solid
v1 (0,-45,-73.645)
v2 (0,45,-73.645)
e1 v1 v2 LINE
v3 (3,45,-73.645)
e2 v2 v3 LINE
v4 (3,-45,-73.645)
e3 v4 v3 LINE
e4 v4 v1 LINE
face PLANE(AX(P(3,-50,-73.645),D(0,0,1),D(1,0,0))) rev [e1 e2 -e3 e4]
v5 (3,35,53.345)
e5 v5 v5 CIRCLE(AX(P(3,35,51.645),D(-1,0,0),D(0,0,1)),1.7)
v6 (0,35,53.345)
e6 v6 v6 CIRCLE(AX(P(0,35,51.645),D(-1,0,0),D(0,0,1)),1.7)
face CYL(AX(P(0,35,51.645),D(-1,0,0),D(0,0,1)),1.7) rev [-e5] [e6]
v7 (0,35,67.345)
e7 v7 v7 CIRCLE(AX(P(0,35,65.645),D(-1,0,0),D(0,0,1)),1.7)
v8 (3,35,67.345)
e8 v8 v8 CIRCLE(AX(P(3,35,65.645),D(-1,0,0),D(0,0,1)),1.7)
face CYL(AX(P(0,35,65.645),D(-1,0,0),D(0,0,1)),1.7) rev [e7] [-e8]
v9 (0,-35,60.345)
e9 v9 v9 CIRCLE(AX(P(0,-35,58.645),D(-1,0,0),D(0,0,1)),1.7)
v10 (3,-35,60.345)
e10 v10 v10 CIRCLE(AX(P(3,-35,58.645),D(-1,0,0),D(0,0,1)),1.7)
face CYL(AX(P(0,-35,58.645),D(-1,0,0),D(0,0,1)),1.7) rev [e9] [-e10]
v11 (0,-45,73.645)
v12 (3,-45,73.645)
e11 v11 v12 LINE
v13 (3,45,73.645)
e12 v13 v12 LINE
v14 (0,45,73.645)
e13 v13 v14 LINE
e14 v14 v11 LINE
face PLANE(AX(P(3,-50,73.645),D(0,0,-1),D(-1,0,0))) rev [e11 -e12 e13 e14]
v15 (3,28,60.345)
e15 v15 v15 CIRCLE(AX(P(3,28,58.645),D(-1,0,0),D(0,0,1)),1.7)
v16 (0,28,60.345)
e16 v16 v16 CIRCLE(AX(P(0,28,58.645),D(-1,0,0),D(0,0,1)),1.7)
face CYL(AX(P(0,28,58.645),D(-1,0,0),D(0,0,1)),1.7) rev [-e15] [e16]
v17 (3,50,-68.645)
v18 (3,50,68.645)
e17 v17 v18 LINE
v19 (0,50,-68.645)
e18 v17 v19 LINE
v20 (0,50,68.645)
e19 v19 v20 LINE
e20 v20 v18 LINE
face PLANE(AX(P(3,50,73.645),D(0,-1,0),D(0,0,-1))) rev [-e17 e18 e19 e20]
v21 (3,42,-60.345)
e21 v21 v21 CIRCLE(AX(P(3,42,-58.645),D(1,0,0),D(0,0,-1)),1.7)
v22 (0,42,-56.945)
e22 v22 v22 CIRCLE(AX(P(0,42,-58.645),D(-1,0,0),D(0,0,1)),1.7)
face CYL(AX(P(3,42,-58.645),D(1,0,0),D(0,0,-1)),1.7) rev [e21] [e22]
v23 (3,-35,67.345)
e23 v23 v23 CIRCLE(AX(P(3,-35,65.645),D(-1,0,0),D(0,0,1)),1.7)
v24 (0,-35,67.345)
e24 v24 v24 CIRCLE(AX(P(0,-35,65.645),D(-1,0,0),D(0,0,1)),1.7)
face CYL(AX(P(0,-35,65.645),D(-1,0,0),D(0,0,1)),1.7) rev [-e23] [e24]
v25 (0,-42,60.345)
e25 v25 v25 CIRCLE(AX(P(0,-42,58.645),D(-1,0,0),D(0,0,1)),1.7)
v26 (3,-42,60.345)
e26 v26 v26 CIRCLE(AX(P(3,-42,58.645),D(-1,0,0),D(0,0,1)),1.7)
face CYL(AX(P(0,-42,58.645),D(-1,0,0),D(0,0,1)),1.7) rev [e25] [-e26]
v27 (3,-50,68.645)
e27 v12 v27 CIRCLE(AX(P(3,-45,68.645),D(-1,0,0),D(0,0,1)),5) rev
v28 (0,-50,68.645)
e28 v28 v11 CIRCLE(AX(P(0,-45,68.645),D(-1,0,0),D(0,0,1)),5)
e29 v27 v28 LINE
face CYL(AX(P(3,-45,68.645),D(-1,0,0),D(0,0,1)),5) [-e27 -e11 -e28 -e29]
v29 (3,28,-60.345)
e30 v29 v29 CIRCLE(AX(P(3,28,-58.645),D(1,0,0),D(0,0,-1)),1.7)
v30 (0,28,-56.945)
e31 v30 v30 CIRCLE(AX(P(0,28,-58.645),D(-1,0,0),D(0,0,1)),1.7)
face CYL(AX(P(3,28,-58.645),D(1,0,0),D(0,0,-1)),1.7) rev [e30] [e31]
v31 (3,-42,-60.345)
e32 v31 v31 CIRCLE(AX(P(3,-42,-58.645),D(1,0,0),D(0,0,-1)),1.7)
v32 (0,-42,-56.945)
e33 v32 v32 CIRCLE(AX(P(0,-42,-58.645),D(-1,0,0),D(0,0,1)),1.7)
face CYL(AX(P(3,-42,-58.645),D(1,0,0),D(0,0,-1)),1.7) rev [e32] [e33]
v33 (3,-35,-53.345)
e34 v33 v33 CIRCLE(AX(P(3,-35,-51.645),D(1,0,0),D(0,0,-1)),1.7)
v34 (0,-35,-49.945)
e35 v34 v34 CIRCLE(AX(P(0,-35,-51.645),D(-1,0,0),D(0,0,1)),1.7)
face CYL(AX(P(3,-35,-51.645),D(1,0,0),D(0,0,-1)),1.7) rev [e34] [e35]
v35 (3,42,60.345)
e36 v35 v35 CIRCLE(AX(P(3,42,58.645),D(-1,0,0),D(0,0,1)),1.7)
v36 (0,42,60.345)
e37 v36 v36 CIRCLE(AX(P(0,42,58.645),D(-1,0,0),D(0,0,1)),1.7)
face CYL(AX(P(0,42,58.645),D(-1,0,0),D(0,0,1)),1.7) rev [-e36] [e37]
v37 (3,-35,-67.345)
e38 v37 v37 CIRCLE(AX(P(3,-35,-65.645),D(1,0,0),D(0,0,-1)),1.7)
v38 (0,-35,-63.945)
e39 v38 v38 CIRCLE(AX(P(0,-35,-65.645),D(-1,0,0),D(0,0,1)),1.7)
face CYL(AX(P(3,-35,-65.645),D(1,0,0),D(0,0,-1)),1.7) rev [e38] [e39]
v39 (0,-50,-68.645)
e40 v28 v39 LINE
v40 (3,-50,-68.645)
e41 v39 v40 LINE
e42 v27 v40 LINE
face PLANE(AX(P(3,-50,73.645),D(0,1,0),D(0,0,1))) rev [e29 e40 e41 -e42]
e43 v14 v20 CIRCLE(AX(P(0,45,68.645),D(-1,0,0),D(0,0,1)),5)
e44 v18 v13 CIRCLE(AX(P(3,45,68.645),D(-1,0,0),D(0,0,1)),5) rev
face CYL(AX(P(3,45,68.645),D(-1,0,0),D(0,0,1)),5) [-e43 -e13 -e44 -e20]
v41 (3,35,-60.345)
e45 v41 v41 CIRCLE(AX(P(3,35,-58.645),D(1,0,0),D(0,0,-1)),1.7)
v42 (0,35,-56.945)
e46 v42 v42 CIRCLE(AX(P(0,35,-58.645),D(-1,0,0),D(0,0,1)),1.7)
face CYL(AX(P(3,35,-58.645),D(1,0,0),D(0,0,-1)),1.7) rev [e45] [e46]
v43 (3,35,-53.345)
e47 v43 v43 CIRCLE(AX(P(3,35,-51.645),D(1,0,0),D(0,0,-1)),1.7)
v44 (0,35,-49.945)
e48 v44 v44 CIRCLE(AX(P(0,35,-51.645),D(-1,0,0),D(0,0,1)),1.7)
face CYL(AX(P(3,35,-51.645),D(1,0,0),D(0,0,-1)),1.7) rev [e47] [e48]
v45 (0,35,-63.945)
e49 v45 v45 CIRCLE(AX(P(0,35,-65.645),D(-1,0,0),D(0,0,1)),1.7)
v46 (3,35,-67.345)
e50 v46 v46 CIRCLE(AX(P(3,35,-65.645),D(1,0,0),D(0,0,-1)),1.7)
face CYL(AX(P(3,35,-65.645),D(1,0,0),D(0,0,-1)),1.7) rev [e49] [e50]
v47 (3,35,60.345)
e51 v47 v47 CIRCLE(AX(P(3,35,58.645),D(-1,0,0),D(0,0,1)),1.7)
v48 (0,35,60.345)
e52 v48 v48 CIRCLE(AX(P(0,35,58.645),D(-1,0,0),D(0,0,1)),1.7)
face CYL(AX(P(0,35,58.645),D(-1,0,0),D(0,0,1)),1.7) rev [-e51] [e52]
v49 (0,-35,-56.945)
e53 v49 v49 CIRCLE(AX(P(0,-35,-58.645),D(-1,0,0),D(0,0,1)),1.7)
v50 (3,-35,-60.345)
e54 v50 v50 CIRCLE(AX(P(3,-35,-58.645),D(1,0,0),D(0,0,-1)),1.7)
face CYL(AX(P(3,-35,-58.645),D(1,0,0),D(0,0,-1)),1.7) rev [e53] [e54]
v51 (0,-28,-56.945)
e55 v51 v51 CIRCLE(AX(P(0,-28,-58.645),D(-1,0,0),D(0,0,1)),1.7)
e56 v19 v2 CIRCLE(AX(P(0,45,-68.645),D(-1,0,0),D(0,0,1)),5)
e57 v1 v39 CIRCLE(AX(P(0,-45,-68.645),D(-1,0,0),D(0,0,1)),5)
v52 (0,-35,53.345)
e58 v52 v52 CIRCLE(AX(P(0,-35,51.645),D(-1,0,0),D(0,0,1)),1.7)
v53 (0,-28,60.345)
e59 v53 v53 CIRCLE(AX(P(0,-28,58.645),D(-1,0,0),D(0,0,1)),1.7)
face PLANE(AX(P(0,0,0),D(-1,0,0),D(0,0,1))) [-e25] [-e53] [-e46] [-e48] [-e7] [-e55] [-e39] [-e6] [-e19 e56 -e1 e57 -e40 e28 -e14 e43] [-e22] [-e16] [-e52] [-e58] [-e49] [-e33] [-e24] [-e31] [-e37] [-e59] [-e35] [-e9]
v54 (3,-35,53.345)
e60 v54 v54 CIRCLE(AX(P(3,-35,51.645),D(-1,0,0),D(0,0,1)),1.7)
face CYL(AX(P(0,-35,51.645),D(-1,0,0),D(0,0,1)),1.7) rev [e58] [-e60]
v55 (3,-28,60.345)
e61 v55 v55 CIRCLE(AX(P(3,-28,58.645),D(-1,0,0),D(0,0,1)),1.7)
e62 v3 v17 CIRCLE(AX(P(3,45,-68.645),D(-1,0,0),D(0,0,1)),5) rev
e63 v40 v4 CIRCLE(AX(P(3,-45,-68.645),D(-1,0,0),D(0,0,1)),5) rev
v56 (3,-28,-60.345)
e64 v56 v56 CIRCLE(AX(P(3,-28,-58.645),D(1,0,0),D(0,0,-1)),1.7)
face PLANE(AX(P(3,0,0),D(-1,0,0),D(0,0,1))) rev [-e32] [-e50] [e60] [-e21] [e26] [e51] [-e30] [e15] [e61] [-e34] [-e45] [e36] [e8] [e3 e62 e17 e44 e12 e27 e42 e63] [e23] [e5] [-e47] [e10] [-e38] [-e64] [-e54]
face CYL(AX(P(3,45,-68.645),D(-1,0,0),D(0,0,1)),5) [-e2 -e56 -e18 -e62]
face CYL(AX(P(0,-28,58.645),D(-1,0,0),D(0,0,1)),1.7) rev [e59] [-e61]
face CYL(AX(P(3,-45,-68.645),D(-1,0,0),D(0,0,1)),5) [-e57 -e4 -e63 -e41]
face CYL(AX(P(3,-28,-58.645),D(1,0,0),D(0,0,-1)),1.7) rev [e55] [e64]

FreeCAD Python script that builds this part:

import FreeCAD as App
import Part
import Sketcher

V = App.Vector
Q = App.Units.Quantity


def edges_at(feature, points):
    """Names of the edges that pass closest to the given points."""
    edges = feature.Shape.Edges
    near = lambda p: min(range(len(edges)), key=lambda i: edges[i].distToShape(Part.Vertex(*p))[0])
    return sorted({f"Edge{near(p) + 1}" for p in points})


def add_polygon(sketch, points):
    """Adds a closed chain of lines whose ends are joined by coincident constraints."""
    first, n = sketch.GeometryCount, len(points)
    for a, b in zip(points, points[1:] + points[:1]):
        sketch.addGeometry(Part.LineSegment(App.Vector(*a, 0), App.Vector(*b, 0)), False)
    for i in range(n):
        sketch.addConstraint(Sketcher.Constraint("Coincident", first + i, 2, first + (i + 1) % n, 1))

doc = App.newDocument("Part")
body = doc.addObject("PartDesign::Body", "Body")

sketch1 = body.newObject("Sketcher::SketchObject", "Sketch")
sketch1.AttachmentSupport = (doc.getObject("YZ_Plane"), [""])
sketch1.MapMode = "FlatFace"
add_polygon(sketch1, [(50, 74), (-50, 74), (-50, -74), (50, -74)])
sketch1.addConstraint(Sketcher.Constraint("Horizontal", 0))
sketch1.addConstraint(Sketcher.Constraint("Vertical", 1))
sketch1.addConstraint(Sketcher.Constraint("Horizontal", 2))
sketch1.addConstraint(Sketcher.Constraint("Vertical", 3))
sketch1.addConstraint(Sketcher.Constraint("Symmetric", 0, 2, 2, 2, -1, 1))
sketch1.addConstraint(Sketcher.Constraint("DistanceX", 0, 2, 0, 1, Q("100 mm")))
sketch1.addConstraint(Sketcher.Constraint("DistanceY", 1, 2, 1, 1, Q("147.29 mm")))
pad1 = body.newObject("PartDesign::Pad", "Pad")
pad1.Profile = sketch1
pad1.Length = 3

sketch2 = body.newObject("Sketcher::SketchObject", "Sketch001")
sketch2.AttachmentSupport = (doc.getObject("YZ_Plane"), [""])
sketch2.MapMode = "FlatFace"
sketch2.AttachmentOffset = App.Placement(V(0, 0, 3), App.Rotation())
sketch2.addGeometry(Part.Circle(V(-35, -58.6, 0), V(0, 0, 1), 1.7), False)
sketch2.addGeometry(Part.Circle(V(-35, -51.6, 0), V(0, 0, 1), 1.7), False)
sketch2.addGeometry(Part.Circle(V(-28, -58.6, 0), V(0, 0, 1), 1.7), False)
sketch2.addGeometry(Part.Circle(V(-35, -65.6, 0), V(0, 0, 1), 1.7), False)
sketch2.addGeometry(Part.Circle(V(-42, -58.6, 0), V(0, 0, 1), 1.7), False)
sketch2.addGeometry(Part.Circle(V(35, -58.6, 0), V(0, 0, 1), 1.7), False)
sketch2.addGeometry(Part.Circle(V(42, -58.6, 0), V(0, 0, 1), 1.7), False)
sketch2.addGeometry(Part.Circle(V(35, -51.6, 0), V(0, 0, 1), 1.7), False)
sketch2.addGeometry(Part.Circle(V(28, -58.6, 0), V(0, 0, 1), 1.7), False)
sketch2.addGeometry(Part.Circle(V(35, -65.6, 0), V(0, 0, 1), 1.7), False)
sketch2.addConstraint(Sketcher.Constraint("Equal", 0, 1))
sketch2.addConstraint(Sketcher.Constraint("Equal", 1, 2))
sketch2.addConstraint(Sketcher.Constraint("Equal", 2, 3))
sketch2.addConstraint(Sketcher.Constraint("Equal", 3, 4))
sketch2.addConstraint(Sketcher.Constraint("Equal", 4, 5))
sketch2.addConstraint(Sketcher.Constraint("Equal", 5, 6))
sketch2.addConstraint(Sketcher.Constraint("Equal", 6, 7))
sketch2.addConstraint(Sketcher.Constraint("Equal", 7, 8))
sketch2.addConstraint(Sketcher.Constraint("Equal", 8, 9))
sketch2.addConstraint(Sketcher.Constraint("Symmetric", 0, 3, 5, 3, -2))
sketch2.addConstraint(Sketcher.Constraint("Symmetric", 4, 3, 6, 3, -2))
sketch2.addConstraint(Sketcher.Constraint("Symmetric", 1, 3, 7, 3, -2))
sketch2.addConstraint(Sketcher.Constraint("Symmetric", 2, 3, 8, 3, -2))
sketch2.addConstraint(Sketcher.Constraint("Symmetric", 3, 3, 9, 3, -2))
sketch2.addConstraint(Sketcher.Constraint("Horizontal", 0, 3, 2, 3))
sketch2.addConstraint(Sketcher.Constraint("Horizontal", 2, 3, 4, 3))
sketch2.addConstraint(Sketcher.Constraint("Vertical", 0, 3, 1, 3))
sketch2.addConstraint(Sketcher.Constraint("Vertical", 1, 3, 3, 3))
sketch2.addConstraint(Sketcher.Constraint("Diameter", 0, Q("3.4 mm")))
sketch2.addConstraint(Sketcher.Constraint("DistanceX", 0, 3, -1, 1, Q("35 mm")))
sketch2.addConstraint(Sketcher.Constraint("DistanceX", 2, 3, -1, 1, Q("28 mm")))
sketch2.addConstraint(Sketcher.Constraint("DistanceX", 4, 3, -1, 1, Q("42 mm")))
sketch2.addConstraint(Sketcher.Constraint("DistanceY", 0, 3, 1, 3, Q("7 mm")))
sketch2.addConstraint(Sketcher.Constraint("DistanceY", 3, 3, 0, 3, Q("7 mm")))
sketch2.addConstraint(Sketcher.Constraint("DistanceY", 0, 3, -1, 1, Q("58.645 mm")))
doc.recompute()
hole = body.newObject("PartDesign::Hole", "Hole")
hole.Profile = sketch2
hole.ThreadType = "None"
hole.Diameter = 3.4
hole.DepthType = "ThroughAll"

sketch3 = body.newObject("Sketcher::SketchObject", "Sketch002")
sketch3.AttachmentSupport = (doc.getObject("YZ_Plane"), [""])
sketch3.MapMode = "FlatFace"
sketch3.addGeometry(Part.Circle(V(35, 58.6, 0), V(0, 0, 1), 1.7), False)
sketch3.addGeometry(Part.Circle(V(42, 58.6, 0), V(0, 0, 1), 1.7), False)
sketch3.addGeometry(Part.Circle(V(35, 65.6, 0), V(0, 0, 1), 1.7), False)
sketch3.addGeometry(Part.Circle(V(28, 58.6, 0), V(0, 0, 1), 1.7), False)
sketch3.addGeometry(Part.Circle(V(35, 51.6, 0), V(0, 0, 1), 1.7), False)
sketch3.addGeometry(Part.Circle(V(-35, 58.6, 0), V(0, 0, 1), 1.7), False)
sketch3.addGeometry(Part.Circle(V(-28, 58.6, 0), V(0, 0, 1), 1.7), False)
sketch3.addGeometry(Part.Circle(V(-35, 65.6, 0), V(0, 0, 1), 1.7), False)
sketch3.addGeometry(Part.Circle(V(-42, 58.6, 0), V(0, 0, 1), 1.7), False)
sketch3.addGeometry(Part.Circle(V(-35, 51.6, 0), V(0, 0, 1), 1.7), False)
sketch3.addConstraint(Sketcher.Constraint("Equal", 0, 1))
sketch3.addConstraint(Sketcher.Constraint("Equal", 1, 2))
sketch3.addConstraint(Sketcher.Constraint("Equal", 2, 3))
sketch3.addConstraint(Sketcher.Constraint("Equal", 3, 4))
sketch3.addConstraint(Sketcher.Constraint("Equal", 4, 5))
sketch3.addConstraint(Sketcher.Constraint("Equal", 5, 6))
sketch3.addConstraint(Sketcher.Constraint("Equal", 6, 7))
sketch3.addConstraint(Sketcher.Constraint("Equal", 7, 8))
sketch3.addConstraint(Sketcher.Constraint("Equal", 8, 9))
sketch3.addConstraint(Sketcher.Constraint("Symmetric", 0, 3, 5, 3, -2))
sketch3.addConstraint(Sketcher.Constraint("Symmetric", 3, 3, 6, 3, -2))
sketch3.addConstraint(Sketcher.Constraint("Symmetric", 2, 3, 7, 3, -2))
sketch3.addConstraint(Sketcher.Constraint("Symmetric", 1, 3, 8, 3, -2))
sketch3.addConstraint(Sketcher.Constraint("Symmetric", 4, 3, 9, 3, -2))
sketch3.addConstraint(Sketcher.Constraint("Horizontal", 0, 3, 1, 3))
sketch3.addConstraint(Sketcher.Constraint("Horizontal", 1, 3, 3, 3))
sketch3.addConstraint(Sketcher.Constraint("Vertical", 0, 3, 2, 3))
sketch3.addConstraint(Sketcher.Constraint("Vertical", 2, 3, 4, 3))
sketch3.addConstraint(Sketcher.Constraint("Diameter", 0, Q("3.4 mm")))
sketch3.addConstraint(Sketcher.Constraint("DistanceX", -1, 1, 0, 3, Q("35 mm")))
sketch3.addConstraint(Sketcher.Constraint("DistanceX", -1, 1, 1, 3, Q("42 mm")))
sketch3.addConstraint(Sketcher.Constraint("DistanceX", -1, 1, 3, 3, Q("28 mm")))
sketch3.addConstraint(Sketcher.Constraint("DistanceY", 0, 3, 2, 3, Q("7 mm")))
sketch3.addConstraint(Sketcher.Constraint("DistanceY", 4, 3, 0, 3, Q("7 mm")))
sketch3.addConstraint(Sketcher.Constraint("DistanceY", -1, 1, 0, 3, Q("58.645 mm")))
doc.recompute()
hole2 = body.newObject("PartDesign::Hole", "Hole001")
hole2.Profile = sketch3
hole2.ThreadType = "None"
hole2.Diameter = 3.4
hole2.DepthType = "ThroughAll"
hole2.Reversed = True
doc.recompute()

fillet = body.newObject("PartDesign::Fillet", "Fillet")
fillet.Base = (hole2, edges_at(hole2, [
    (1.5, -50, -73.645),
    (1.5, -50, 73.645),
    (1.5, 50, 73.645),
    (1.5, 50, -73.645),
]))
fillet.Radius = 5

doc.recompute()
